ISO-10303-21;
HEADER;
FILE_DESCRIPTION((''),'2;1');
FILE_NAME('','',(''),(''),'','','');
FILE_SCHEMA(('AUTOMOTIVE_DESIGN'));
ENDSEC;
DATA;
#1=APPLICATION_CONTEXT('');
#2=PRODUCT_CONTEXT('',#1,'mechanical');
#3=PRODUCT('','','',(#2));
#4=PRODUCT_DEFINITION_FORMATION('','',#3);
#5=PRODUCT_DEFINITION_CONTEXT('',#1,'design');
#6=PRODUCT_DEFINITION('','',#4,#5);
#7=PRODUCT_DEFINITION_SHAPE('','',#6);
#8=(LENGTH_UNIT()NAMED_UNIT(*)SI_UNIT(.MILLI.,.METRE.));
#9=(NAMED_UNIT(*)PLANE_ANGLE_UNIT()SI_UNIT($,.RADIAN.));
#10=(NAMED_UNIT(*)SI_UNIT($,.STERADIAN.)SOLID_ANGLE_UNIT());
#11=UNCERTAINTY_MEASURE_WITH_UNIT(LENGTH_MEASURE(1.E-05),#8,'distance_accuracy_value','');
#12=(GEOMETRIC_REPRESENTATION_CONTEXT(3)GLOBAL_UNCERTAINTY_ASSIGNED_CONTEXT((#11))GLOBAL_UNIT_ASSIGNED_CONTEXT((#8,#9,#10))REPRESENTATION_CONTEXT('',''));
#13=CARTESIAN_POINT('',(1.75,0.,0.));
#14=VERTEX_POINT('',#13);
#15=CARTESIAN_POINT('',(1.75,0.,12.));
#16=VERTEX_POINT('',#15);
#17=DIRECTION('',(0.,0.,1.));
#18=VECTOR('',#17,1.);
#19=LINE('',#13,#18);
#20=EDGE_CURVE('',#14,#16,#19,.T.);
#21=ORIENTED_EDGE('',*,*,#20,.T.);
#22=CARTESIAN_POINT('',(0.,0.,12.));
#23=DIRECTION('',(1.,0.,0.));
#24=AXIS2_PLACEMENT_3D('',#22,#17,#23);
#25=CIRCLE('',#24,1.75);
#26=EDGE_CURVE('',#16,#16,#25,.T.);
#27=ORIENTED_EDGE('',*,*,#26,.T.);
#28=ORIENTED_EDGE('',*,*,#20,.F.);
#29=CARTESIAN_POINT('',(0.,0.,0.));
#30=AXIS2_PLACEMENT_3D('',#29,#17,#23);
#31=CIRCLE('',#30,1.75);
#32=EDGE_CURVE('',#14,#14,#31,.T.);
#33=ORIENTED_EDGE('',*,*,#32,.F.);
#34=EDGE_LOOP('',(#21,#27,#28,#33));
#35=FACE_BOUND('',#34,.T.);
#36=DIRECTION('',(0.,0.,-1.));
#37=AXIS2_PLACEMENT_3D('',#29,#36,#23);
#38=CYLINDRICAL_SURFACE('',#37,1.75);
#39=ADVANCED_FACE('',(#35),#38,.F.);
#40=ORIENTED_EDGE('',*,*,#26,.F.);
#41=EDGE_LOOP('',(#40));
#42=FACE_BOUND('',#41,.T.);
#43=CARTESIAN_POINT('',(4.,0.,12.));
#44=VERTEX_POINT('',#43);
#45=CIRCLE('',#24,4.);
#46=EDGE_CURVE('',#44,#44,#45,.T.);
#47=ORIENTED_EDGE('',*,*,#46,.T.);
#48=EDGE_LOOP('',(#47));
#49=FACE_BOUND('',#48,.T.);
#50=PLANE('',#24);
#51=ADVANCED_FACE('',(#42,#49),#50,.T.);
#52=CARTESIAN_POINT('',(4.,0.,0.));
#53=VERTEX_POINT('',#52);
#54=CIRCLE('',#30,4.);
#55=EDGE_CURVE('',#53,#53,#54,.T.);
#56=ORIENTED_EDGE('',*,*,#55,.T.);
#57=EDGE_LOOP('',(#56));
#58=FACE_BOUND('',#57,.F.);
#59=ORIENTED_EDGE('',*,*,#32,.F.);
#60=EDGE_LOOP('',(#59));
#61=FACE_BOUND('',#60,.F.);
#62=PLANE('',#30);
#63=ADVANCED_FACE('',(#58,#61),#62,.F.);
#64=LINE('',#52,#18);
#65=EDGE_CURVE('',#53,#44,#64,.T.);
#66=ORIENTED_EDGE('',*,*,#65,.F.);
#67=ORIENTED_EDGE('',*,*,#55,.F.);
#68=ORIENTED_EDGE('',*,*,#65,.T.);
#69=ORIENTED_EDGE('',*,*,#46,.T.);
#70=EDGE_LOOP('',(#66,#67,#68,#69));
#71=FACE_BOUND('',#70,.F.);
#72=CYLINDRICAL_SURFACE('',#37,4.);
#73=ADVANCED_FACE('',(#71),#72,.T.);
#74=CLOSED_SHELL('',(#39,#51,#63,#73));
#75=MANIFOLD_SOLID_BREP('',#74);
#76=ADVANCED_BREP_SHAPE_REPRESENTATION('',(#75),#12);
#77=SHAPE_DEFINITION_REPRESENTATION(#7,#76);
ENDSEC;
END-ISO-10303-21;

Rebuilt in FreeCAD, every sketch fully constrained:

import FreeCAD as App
import Part
import Sketcher
from FreeCAD import Vector
Q = App.Units.Quantity

doc = App.newDocument("Part")
params = doc.addObject("Spreadsheet::Sheet", "Params")
for row, (alias, value) in enumerate([
    ("sketch1_diameter", "8 mm"),
    ("sketch1_diameter2", "3.5 mm"),
    ("pad1_length", "12 mm"),
], start=1):
    params.set(f"A{row}", alias)
    params.set(f"B{row}", "=" + value)
    params.setAlias(f"B{row}", alias)

body = doc.addObject("PartDesign::Body", "Body")

sketch1 = body.newObject("Sketcher::SketchObject", "Sketch")
sketch1.AttachmentSupport = (doc.getObject("XY_Plane"), [""])
sketch1.MapMode = "FlatFace"
sketch1.addGeometry([
    Part.Circle(Vector(0, 0, 0), Vector(0, 0, 1), 4),
    Part.Circle(Vector(0, 0, 0), Vector(0, 0, 1), 1.75),
], False)
sketch1.addConstraint([
    Sketcher.Constraint("Coincident", 0, 3, -1, 1),
    Sketcher.Constraint("Coincident", 1, 3, -1, 1),
    Sketcher.Constraint("Diameter", 0, Q("8 mm")),
    Sketcher.Constraint("Diameter", 1, Q("3.5 mm")),
])
sketch1.setExpression("Constraints[2]", "Params.sketch1_diameter")
sketch1.setExpression("Constraints[3]", "Params.sketch1_diameter2")
pad1 = body.newObject("PartDesign::Pad", "Pad")
pad1.Profile = sketch1
pad1.setExpression("Length", "Params.pad1_length")

doc.recompute()
